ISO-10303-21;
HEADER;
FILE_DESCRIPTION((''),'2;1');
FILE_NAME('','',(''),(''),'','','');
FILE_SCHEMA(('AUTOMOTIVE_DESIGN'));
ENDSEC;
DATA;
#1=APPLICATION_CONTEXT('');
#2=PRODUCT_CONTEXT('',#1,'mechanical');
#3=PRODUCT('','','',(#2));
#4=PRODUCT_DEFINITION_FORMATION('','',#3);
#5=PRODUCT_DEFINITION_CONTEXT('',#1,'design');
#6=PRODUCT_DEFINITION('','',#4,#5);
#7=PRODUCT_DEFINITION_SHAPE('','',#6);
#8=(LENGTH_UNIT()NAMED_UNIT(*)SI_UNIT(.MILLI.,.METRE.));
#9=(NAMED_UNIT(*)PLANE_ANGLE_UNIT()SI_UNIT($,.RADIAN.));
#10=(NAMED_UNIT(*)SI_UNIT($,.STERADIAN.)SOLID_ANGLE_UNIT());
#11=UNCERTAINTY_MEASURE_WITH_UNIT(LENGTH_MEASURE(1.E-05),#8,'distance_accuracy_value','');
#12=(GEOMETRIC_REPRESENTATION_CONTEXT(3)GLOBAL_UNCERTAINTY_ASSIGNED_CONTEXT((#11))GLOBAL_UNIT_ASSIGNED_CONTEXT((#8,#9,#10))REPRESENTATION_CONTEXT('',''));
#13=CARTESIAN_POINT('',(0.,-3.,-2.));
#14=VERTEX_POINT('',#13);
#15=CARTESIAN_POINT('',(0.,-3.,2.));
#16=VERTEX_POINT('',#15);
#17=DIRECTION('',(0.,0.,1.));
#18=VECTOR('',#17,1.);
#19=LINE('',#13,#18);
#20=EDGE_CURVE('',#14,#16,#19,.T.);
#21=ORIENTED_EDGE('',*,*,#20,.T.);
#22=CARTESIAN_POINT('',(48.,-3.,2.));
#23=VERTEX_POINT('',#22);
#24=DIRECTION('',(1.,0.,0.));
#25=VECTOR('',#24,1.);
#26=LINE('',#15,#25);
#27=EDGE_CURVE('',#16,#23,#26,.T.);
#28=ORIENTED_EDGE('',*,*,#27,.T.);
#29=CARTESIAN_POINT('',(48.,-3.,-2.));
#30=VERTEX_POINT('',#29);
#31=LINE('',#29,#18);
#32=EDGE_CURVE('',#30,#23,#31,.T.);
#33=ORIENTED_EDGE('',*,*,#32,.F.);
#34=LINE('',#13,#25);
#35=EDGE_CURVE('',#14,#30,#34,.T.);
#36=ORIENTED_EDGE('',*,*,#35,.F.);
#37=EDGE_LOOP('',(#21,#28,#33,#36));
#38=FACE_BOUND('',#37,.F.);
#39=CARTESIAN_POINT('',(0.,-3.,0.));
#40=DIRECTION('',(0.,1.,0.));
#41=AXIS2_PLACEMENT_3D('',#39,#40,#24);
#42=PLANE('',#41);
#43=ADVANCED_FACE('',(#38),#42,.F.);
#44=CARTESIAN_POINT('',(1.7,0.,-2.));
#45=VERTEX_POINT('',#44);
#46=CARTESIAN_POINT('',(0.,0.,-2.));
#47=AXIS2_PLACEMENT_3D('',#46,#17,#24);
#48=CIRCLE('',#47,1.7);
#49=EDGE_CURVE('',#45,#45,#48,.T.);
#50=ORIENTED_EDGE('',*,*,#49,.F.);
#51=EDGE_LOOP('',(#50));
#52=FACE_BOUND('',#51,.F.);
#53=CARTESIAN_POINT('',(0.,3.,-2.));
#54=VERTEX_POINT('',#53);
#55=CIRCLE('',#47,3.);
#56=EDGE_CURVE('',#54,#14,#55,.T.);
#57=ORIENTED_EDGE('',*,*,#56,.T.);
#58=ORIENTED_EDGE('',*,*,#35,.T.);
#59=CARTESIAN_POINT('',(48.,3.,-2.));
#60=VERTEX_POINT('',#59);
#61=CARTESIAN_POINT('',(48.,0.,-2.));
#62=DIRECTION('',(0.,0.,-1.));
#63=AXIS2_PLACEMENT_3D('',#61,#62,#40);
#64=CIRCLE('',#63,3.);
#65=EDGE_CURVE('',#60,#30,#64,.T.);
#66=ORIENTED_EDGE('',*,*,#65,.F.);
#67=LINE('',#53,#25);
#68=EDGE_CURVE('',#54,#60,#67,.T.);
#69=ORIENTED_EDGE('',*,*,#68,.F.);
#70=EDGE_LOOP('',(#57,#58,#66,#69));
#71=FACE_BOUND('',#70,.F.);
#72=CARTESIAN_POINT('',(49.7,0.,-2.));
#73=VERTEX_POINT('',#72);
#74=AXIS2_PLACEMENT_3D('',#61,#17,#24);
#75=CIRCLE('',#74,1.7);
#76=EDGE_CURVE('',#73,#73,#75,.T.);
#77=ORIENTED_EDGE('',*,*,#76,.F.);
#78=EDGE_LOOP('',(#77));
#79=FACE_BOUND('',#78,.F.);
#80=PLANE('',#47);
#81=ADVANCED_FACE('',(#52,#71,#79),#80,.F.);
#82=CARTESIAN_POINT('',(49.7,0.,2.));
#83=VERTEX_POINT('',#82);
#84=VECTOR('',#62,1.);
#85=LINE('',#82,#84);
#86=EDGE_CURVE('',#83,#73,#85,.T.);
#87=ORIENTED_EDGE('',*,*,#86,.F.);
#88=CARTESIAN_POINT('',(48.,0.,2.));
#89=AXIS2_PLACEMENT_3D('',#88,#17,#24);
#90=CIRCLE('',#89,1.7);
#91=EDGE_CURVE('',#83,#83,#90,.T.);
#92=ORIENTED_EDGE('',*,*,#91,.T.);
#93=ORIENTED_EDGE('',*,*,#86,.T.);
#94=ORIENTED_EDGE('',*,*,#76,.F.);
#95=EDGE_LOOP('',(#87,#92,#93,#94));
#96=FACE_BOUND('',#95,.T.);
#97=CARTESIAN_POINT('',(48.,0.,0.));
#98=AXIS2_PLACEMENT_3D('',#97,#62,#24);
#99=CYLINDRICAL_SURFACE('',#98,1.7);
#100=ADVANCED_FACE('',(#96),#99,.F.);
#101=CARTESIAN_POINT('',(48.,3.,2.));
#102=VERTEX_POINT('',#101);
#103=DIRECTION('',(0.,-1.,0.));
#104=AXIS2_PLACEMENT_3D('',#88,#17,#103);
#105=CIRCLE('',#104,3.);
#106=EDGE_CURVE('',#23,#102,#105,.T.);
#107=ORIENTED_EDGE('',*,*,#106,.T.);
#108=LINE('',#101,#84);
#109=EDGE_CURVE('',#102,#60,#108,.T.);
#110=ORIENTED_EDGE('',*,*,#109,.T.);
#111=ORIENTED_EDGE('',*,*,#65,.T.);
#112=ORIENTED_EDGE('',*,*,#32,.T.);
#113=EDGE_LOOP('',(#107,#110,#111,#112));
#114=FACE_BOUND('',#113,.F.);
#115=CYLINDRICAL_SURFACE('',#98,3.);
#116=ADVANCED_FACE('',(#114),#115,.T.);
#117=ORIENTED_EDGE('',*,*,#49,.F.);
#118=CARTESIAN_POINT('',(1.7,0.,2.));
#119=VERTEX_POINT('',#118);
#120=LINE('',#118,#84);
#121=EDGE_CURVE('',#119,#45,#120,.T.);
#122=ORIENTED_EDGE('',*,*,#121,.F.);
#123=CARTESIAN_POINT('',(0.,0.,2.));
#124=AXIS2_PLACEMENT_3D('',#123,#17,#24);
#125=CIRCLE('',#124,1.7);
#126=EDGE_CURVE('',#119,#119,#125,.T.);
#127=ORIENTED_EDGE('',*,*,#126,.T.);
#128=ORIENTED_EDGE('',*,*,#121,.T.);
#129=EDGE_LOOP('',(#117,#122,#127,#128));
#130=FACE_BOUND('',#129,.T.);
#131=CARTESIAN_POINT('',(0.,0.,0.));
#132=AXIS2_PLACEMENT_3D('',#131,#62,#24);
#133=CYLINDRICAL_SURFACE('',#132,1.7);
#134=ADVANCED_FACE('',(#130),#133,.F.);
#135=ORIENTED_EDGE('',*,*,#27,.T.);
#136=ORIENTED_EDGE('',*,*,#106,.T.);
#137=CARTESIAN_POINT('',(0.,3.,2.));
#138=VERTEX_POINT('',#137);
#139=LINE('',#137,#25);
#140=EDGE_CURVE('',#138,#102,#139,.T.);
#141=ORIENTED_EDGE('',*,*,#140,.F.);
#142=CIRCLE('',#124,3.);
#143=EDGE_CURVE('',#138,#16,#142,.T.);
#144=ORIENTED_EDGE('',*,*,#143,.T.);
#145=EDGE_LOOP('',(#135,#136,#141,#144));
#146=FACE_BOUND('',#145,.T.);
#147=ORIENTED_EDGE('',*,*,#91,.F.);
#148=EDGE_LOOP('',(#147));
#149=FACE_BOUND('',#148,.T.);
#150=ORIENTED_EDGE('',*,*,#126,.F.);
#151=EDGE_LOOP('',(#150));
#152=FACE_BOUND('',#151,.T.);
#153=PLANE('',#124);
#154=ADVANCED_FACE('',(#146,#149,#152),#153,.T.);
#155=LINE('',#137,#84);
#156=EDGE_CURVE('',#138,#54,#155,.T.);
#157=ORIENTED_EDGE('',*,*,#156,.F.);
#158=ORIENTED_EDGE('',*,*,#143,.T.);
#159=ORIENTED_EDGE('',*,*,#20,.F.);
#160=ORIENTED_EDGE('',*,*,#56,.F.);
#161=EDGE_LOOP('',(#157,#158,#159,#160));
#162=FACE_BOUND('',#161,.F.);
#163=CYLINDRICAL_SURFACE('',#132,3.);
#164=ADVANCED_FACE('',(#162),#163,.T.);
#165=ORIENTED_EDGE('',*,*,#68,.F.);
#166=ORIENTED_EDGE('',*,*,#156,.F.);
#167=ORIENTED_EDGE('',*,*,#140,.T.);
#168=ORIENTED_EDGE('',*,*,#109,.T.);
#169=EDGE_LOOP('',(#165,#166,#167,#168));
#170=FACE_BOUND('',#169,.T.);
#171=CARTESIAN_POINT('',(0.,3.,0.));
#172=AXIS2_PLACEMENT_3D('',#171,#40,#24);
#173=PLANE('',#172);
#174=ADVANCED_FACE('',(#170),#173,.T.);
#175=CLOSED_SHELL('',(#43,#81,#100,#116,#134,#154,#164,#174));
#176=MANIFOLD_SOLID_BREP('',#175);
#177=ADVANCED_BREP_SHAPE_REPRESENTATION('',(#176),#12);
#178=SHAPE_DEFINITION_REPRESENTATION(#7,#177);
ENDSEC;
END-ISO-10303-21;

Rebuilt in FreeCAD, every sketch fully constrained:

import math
import FreeCAD as App
import Part
import Sketcher

V = App.Vector

doc = App.newDocument("Part")
body = doc.addObject("PartDesign::Body", "Body")

# Sketch on XY plane
sketch1 = body.newObject("Sketcher::SketchObject", "Sketch")
sketch1.AttachmentSupport = (doc.getObject("XY_Plane"), [""])
sketch1.MapMode = "FlatFace"
sketch1.addGeometry([
    Part.ArcOfCircle(Part.Circle(V(0, 0, 0), V(0, 0, 1), 3), math.radians(90), math.radians(270)),  # 0
    Part.LineSegment(V(0, -3, 0), V(48, -3, 0)),  # 1
    Part.ArcOfCircle(Part.Circle(V(48, 0, 0), V(0, 0, 1), 3), math.radians(-90), math.radians(90)),  # 2
    Part.LineSegment(V(48, 3, 0), V(0, 3, 0)),  # 3
    Part.Circle(V(0, 0, 0), V(0, 0, 1), 1.7),  # 4
    Part.Circle(V(48, 0, 0), V(0, 0, 1), 1.7),  # 5
], False)
sketch1.addConstraint([
    Sketcher.Constraint("Tangent", 0, 2, 1, 1),
    Sketcher.Constraint("Tangent", 1, 2, 2, 1),
    Sketcher.Constraint("Tangent", 2, 2, 3, 1),
    Sketcher.Constraint("Tangent", 3, 2, 0, 1),
    Sketcher.Constraint("Horizontal", 1),
    Sketcher.Constraint("Horizontal", 3),
    Sketcher.Constraint("Coincident", 0, 3, -1, 1),
    Sketcher.Constraint("Coincident", 4, 3, -1, 1),
    Sketcher.Constraint("Coincident", 5, 3, 2, 3),
    Sketcher.Constraint("Equal", 4, 5),
    Sketcher.Constraint("Radius", 0, 3.0),
    Sketcher.Constraint("Diameter", 4, 3.4),
    Sketcher.Constraint("DistanceX", 1, 1, 1, 2, 48.0),
])
pad1 = body.newObject("PartDesign::Pad", "Pad")
pad1.Profile = sketch1
pad1.Length = 4
pad1.Midplane = True

doc.recompute()
